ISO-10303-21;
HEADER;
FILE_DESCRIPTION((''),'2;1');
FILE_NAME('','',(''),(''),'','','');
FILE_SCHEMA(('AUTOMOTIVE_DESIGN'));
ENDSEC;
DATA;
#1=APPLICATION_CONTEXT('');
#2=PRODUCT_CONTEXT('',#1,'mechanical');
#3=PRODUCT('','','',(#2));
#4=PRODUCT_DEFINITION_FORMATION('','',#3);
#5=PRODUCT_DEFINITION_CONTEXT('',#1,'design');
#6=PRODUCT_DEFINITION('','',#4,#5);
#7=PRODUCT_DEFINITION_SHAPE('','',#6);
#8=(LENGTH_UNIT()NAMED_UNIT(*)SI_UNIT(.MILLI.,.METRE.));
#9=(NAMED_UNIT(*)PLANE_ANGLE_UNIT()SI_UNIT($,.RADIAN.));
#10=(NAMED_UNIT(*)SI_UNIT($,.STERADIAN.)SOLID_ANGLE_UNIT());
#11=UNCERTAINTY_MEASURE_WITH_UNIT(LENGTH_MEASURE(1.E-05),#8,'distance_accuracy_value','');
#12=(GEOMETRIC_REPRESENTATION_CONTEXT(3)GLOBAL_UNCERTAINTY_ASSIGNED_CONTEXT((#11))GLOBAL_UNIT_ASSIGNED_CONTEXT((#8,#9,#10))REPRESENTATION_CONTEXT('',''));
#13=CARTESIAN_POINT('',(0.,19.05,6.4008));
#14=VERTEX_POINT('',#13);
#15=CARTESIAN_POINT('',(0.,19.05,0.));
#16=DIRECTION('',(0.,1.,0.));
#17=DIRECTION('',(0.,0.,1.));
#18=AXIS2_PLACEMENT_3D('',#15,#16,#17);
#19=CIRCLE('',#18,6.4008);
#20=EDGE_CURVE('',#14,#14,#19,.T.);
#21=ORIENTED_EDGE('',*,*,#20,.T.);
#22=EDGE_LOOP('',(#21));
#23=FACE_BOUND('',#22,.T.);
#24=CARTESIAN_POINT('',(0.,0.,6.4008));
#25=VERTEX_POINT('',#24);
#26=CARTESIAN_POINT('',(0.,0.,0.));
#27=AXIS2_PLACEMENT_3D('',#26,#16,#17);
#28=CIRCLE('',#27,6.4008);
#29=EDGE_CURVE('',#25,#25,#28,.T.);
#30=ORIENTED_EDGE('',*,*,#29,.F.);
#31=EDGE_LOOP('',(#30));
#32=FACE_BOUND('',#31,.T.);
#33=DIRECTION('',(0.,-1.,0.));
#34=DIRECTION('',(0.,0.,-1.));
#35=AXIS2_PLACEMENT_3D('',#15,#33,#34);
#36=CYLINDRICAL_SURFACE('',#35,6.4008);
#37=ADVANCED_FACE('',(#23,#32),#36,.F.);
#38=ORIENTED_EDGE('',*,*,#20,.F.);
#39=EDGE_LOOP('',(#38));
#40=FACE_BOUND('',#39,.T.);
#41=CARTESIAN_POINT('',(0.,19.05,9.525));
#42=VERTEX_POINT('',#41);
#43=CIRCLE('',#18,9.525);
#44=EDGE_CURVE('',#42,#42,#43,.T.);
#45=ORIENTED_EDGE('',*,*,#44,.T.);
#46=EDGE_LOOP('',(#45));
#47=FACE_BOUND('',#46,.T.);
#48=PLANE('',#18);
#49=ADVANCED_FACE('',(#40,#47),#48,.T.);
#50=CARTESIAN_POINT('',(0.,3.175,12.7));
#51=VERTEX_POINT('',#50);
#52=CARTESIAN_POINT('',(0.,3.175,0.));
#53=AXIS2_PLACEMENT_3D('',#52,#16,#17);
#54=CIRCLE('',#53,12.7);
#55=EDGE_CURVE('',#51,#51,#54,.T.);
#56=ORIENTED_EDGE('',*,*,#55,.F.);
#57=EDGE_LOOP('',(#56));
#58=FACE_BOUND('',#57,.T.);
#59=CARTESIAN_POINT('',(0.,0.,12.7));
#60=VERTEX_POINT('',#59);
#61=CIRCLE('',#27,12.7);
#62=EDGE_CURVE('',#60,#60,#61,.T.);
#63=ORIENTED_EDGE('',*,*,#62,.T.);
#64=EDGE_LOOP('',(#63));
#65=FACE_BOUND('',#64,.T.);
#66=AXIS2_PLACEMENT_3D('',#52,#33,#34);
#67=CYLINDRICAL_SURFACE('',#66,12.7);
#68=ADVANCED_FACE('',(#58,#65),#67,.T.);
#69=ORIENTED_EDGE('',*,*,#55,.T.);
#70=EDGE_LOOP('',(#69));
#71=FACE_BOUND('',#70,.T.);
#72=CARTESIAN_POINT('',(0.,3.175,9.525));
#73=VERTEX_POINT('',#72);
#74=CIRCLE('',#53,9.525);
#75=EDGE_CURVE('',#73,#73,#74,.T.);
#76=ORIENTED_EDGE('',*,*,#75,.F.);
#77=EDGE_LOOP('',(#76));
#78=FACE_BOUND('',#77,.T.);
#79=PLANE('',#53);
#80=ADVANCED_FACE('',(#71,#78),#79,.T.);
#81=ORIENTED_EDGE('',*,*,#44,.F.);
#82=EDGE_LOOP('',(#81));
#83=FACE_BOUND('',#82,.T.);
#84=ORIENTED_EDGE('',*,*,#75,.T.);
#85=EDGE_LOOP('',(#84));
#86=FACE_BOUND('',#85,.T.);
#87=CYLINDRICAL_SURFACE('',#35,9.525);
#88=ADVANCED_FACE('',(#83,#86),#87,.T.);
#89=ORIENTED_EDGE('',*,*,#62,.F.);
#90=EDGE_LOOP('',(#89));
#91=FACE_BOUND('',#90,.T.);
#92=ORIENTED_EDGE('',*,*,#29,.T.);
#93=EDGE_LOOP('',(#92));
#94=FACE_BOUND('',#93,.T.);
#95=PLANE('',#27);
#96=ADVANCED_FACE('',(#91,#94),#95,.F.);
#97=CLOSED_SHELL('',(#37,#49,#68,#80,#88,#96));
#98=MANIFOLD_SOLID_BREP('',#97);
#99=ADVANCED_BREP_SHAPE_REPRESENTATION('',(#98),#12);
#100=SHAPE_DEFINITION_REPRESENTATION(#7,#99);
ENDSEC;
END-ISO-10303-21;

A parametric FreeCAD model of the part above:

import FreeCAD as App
import Part
import Sketcher
Q = App.Units.Quantity

doc = App.newDocument("Part")
body = doc.addObject("PartDesign::Body", "Body")

sketch1 = body.newObject("Sketcher::SketchObject", "Sketch")
sketch1.AttachmentSupport = (doc.getObject("XZ_Plane"), [""])
sketch1.MapMode = "FlatFace"
sketch1.addGeometry([
    Part.Circle(App.Vector(0, 0, 0), App.Vector(0, 0, 1), 9.525),
    Part.Circle(App.Vector(0, 0, 0), App.Vector(0, 0, 1), 6.4008),
], False)
sketch1.addConstraint([
    Sketcher.Constraint("Coincident", 0, 3, -1, 1),
    Sketcher.Constraint("Coincident", 1, 3, -1, 1),
    Sketcher.Constraint("Diameter", 0, Q("0.75 in")),
    Sketcher.Constraint("Diameter", 1, Q("0.504 in")),
])
pad1 = body.newObject("PartDesign::Pad", "Pad")
pad1.Profile = sketch1
pad1.Length = Q("0.75 in")
pad1.Reversed = True

sketch2 = body.newObject("Sketcher::SketchObject", "Sketch001")
sketch2.AttachmentSupport = (doc.getObject("XZ_Plane"), [""])
sketch2.MapMode = "FlatFace"
sketch2.addGeometry([
    Part.Circle(App.Vector(0, 0, 0), App.Vector(0, 0, 1), 12.7),
    Part.Circle(App.Vector(0, 0, 0), App.Vector(0, 0, 1), 9.525),
], False)
sketch2.addConstraint([
    Sketcher.Constraint("Coincident", 0, 3, -1, 1),
    Sketcher.Constraint("Coincident", 1, 3, -1, 1),
    Sketcher.Constraint("Diameter", 0, Q("1 in")),
    Sketcher.Constraint("Diameter", 1, Q("0.75 in")),
])
pad2 = body.newObject("PartDesign::Pad", "Pad001")
pad2.Profile = sketch2
pad2.Length = Q("0.125 in")
pad2.Reversed = True

doc.recompute()
